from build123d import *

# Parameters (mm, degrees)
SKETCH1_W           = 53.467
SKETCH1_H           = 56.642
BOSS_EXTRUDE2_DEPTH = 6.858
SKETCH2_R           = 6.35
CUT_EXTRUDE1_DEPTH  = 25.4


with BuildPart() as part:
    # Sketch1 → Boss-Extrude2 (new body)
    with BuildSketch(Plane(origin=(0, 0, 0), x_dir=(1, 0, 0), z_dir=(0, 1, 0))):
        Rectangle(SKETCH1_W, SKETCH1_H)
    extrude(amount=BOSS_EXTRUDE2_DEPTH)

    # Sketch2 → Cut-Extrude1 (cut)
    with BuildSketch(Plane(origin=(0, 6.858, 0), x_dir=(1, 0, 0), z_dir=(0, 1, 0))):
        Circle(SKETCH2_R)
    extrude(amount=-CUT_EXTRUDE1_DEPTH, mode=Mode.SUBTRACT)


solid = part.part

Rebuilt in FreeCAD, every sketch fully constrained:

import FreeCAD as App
import Part
import Sketcher
Q = App.Units.Quantity


def add_polygon(sketch, points):
    """Adds a closed chain of lines whose ends are joined by coincident constraints."""
    first, n = sketch.GeometryCount, len(points)
    for a, b in zip(points, points[1:] + points[:1]):
        sketch.addGeometry(Part.LineSegment(App.Vector(*a, 0), App.Vector(*b, 0)), False)
    for i in range(n):
        sketch.addConstraint(Sketcher.Constraint("Coincident", first + i, 2, first + (i + 1) % n, 1))

doc = App.newDocument("Part")
params = doc.addObject("Spreadsheet::Sheet", "Params")
for row, (alias, value) in enumerate([
    ("sketch1_height", "2.23 in"),
    ("sketch1_width", "2.105 in"),
    ("pad1_length", "0.27 in"),
    ("sketch2_diameter", "0.5 in"),
    ("pocket1_length", "1 in"),
], start=1):
    params.set(f"A{row}", alias)
    params.set(f"B{row}", "=" + value)
    params.setAlias(f"B{row}", alias)

body = doc.addObject("PartDesign::Body", "Body")

# Sketch on XZ plane
sketch1 = doc.addObject("Sketcher::SketchObject", "Sketch")
body.addObject(sketch1)
sketch1.AttachmentSupport = (doc.XZ_Plane, [""])
sketch1.MapMode = "FlatFace"
add_polygon(sketch1, [(-27, -28), (-27, 28), (27, 28), (27, -28)])  # lines 0-3
sketch1.addConstraint([
    Sketcher.Constraint("Vertical", 0),
    Sketcher.Constraint("Horizontal", 1),
    Sketcher.Constraint("Vertical", 2),
    Sketcher.Constraint("Horizontal", 3),
    Sketcher.Constraint("Symmetric", 0, 2, 2, 2, -1, 1),
    Sketcher.Constraint("DistanceY", 0, 1, 0, 2, Q("2.23 in")),
    Sketcher.Constraint("DistanceX", 1, 1, 1, 2, Q("2.105 in")),
])
sketch1.setExpression("Constraints[9]", "Params.sketch1_height")
sketch1.setExpression("Constraints[10]", "Params.sketch1_width")
pad1 = doc.addObject("PartDesign::Pad", "Pad")
body.addObject(pad1)
pad1.Profile = sketch1
pad1.setExpression("Length", "Params.pad1_length")
pad1.Reversed = True

# Sketch on XZ plane
sketch2 = doc.addObject("Sketcher::SketchObject", "Sketch001")
body.addObject(sketch2)
sketch2.AttachmentSupport = (doc.XZ_Plane, [""])
sketch2.MapMode = "FlatFace"
sketch2.AttachmentOffset = App.Placement(App.Vector(0, 0, -0.27 * 25.4), App.Rotation())
sketch2.addGeometry(Part.Circle(App.Vector(0, 0, 0), App.Vector(0, 0, 1), 6), False)
sketch2.addConstraint([
    Sketcher.Constraint("Coincident", 0, 3, -1, 1),
    Sketcher.Constraint("Diameter", 0, Q("0.5 in")),
])
sketch2.setExpression("Constraints[1]", "Params.sketch2_diameter")
pocket1 = doc.addObject("PartDesign::Pocket", "Pocket")
body.addObject(pocket1)
pocket1.Profile = sketch2
pocket1.setExpression("Length", "Params.pocket1_length")
pocket1.Reversed = True

doc.recompute()
